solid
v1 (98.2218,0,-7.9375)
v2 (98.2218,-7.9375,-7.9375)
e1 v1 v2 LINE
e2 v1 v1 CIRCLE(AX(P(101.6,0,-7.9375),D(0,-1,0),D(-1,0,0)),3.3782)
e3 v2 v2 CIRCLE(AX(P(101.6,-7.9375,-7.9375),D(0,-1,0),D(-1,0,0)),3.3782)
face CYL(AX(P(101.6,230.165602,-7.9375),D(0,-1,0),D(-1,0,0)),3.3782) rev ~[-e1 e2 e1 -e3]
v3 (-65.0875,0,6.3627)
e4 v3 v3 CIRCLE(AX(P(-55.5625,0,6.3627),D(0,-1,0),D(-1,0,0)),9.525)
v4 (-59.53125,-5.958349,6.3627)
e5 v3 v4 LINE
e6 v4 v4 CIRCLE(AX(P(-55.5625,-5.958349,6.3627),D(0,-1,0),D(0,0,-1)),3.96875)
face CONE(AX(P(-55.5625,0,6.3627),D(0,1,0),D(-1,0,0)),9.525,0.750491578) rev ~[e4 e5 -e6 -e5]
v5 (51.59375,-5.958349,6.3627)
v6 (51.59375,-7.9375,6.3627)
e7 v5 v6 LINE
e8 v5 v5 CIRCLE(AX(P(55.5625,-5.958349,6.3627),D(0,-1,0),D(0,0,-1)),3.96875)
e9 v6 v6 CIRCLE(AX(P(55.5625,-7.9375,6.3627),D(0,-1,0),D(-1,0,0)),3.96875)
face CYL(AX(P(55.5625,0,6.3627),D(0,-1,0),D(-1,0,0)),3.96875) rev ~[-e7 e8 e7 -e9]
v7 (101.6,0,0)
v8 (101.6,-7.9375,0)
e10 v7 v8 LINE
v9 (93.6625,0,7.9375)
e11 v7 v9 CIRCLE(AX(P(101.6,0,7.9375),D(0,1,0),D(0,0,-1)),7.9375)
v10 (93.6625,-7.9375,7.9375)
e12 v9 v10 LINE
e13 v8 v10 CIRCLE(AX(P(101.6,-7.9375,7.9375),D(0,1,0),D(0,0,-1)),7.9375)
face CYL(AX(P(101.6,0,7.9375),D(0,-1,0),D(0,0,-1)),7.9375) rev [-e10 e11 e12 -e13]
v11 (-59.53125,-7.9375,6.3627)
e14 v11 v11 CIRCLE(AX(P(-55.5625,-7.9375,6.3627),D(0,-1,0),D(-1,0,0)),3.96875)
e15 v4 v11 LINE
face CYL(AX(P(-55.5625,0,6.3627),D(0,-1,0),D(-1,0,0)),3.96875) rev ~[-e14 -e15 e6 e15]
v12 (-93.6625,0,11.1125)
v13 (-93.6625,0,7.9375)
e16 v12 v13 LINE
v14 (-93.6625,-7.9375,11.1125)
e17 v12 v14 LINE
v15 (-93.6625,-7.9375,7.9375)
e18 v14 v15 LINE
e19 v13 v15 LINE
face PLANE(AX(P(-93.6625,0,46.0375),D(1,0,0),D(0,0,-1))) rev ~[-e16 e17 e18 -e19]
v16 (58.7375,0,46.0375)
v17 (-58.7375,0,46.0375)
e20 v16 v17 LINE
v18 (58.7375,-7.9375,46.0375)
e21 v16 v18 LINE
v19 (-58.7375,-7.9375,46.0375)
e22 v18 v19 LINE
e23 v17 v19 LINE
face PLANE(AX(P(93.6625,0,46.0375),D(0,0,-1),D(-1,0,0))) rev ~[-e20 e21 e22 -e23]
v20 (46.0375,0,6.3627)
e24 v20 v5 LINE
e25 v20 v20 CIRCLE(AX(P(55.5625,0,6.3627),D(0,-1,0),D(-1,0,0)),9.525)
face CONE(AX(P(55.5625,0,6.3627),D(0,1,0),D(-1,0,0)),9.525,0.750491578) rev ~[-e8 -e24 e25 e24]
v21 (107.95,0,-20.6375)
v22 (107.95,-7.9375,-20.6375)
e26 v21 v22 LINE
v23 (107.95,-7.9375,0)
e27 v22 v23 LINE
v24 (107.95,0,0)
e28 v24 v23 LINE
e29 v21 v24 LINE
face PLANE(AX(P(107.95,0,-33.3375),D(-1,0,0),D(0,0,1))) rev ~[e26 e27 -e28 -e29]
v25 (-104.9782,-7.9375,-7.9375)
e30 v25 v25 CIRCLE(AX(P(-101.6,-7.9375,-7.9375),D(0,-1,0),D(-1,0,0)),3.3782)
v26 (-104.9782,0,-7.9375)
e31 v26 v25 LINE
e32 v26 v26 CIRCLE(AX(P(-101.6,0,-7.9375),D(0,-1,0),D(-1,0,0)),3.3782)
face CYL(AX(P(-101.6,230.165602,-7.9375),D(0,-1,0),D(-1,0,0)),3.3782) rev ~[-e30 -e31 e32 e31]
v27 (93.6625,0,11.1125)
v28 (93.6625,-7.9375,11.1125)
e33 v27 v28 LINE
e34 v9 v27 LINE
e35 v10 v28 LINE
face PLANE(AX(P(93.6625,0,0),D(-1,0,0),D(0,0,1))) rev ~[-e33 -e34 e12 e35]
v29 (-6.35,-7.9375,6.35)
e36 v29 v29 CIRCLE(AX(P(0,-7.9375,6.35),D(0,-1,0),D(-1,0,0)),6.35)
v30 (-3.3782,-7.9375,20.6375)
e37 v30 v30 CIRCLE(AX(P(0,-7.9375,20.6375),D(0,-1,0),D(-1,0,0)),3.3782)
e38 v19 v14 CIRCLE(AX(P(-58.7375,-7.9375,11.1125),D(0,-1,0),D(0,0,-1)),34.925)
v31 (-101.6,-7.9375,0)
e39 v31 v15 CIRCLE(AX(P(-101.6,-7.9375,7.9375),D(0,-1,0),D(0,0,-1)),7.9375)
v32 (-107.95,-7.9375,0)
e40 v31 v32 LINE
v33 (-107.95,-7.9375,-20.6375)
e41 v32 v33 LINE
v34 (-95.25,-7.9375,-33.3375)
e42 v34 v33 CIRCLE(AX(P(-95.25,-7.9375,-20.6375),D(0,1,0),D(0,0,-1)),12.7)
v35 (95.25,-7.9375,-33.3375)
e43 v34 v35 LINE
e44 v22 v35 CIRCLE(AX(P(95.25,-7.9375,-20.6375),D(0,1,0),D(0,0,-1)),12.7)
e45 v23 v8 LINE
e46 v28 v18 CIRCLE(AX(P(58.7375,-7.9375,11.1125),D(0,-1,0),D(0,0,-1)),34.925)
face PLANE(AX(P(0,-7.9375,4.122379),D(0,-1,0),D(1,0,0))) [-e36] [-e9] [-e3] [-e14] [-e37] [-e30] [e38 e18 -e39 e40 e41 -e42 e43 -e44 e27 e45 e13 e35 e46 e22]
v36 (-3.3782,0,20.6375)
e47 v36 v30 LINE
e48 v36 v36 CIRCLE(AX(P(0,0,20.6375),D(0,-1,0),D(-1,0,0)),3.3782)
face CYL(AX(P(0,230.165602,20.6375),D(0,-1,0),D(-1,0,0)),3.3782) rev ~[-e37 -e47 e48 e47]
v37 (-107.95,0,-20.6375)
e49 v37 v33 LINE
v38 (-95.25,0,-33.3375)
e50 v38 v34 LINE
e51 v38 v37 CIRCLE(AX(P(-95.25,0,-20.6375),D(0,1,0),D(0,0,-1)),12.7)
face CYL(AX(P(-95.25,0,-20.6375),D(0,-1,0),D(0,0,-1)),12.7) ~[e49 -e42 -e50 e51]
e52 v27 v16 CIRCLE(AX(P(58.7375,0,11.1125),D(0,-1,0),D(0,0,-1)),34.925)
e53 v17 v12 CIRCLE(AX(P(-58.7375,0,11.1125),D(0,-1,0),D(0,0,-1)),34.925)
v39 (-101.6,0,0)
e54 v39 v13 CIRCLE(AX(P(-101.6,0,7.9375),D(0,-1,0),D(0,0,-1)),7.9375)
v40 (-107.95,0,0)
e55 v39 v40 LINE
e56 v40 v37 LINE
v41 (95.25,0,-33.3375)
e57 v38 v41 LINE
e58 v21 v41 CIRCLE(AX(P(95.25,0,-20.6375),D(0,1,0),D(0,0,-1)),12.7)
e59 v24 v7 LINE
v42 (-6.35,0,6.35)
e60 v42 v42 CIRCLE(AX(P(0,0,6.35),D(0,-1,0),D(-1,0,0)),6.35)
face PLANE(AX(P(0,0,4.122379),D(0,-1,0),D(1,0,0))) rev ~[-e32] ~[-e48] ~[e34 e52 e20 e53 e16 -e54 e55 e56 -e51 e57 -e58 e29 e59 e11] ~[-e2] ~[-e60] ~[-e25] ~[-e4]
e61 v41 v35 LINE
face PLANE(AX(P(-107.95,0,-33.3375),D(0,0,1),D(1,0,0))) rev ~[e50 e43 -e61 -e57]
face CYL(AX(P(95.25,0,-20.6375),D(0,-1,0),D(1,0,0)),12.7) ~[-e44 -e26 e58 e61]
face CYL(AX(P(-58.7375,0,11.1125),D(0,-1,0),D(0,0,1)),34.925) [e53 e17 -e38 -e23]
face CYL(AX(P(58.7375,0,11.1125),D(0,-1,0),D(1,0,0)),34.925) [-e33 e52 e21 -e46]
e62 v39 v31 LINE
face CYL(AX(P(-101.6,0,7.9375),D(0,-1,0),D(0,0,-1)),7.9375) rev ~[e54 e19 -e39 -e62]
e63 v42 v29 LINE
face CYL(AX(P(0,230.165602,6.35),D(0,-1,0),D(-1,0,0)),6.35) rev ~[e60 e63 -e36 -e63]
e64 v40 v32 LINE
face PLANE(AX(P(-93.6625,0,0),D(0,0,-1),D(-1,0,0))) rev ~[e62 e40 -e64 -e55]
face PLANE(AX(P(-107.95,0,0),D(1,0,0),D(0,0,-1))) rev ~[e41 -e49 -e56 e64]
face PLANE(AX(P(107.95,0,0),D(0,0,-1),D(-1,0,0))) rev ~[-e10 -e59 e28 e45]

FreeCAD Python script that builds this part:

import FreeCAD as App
import Part
import Sketcher
from FreeCAD import Vector
Q = App.Units.Quantity


def edges_at(feature, points):
    """Names of the edges that pass closest to the given points."""
    edges = feature.Shape.Edges
    near = lambda p: min(range(len(edges)), key=lambda i: edges[i].distToShape(Part.Vertex(*p))[0])
    return sorted({f"Edge{near(p) + 1}" for p in points})


def add_polygon(sketch, points):
    """Adds a closed chain of lines whose ends are joined by coincident constraints."""
    first, n = sketch.GeometryCount, len(points)
    for a, b in zip(points, points[1:] + points[:1]):
        sketch.addGeometry(Part.LineSegment(App.Vector(*a, 0), App.Vector(*b, 0)), False)
    for i in range(n):
        sketch.addConstraint(Sketcher.Constraint("Coincident", first + i, 2, first + (i + 1) % n, 1))

doc = App.newDocument("Part")
params = doc.addObject("Spreadsheet::Sheet", "Params")
for row, (alias, value) in enumerate([
    ("sketch1_width", "8.5 in"),
    ("sketch1_width2", "0.5625 in"),
    ("sketch1_height", "1.3125 in"),
    ("sketch1_height2", "1.8125 in"),
    ("pad1_length", "0.3125 in"),
    ("fillet_radius", "1.375 in"),
    ("fillet2_radius", "0.5 in"),
    ("sketch2_diameter", "0.266 in"),
    ("hole_diameter", "0.266 in"),
    ("sketch3_diameter", "0.266 in"),
    ("hole2_diameter", "0.266 in"),
    ("sketch4_diameter", "0.5 in"),
    ("hole3_diameter", "0.5 in"),
    ("fillet3_radius", "0.3125 in"),
    ("sketch5_diameter", "0.3125 in"),
    ("hole4_diameter", "0.3125 in"),
    ("hole4_csink_diameter", "0.75 in"),
], start=1):
    params.set(f"A{row}", alias)
    params.set(f"B{row}", "=" + value)
    params.setAlias(f"B{row}", alias)

body = doc.addObject("PartDesign::Body", "Body")

# Sketch on XZ plane
sketch1 = body.newObject("Sketcher::SketchObject", "Sketch")
sketch1.AttachmentSupport = (doc.getObject("XZ_Plane"), [""])
sketch1.MapMode = "FlatFace"
add_polygon(sketch1, [(-107.95, 0), (-107.95, -33.3375), (107.95, -33.3375), (107.95, 0), (93.6625, 0), (93.6625, 46.0375), (-93.6625, 46.0375), (-93.6625, 0)])  # lines 0-7
sketch1.addConstraint(Sketcher.Constraint("Vertical", 0))
sketch1.addConstraint(Sketcher.Constraint("Horizontal", 1))
sketch1.addConstraint(Sketcher.Constraint("Vertical", 2))
sketch1.addConstraint(Sketcher.Constraint("Horizontal", 3))
sketch1.addConstraint(Sketcher.Constraint("Vertical", 4))
sketch1.addConstraint(Sketcher.Constraint("Horizontal", 5))
sketch1.addConstraint(Sketcher.Constraint("Vertical", 6))
sketch1.addConstraint(Sketcher.Constraint("Horizontal", 7))
sketch1.addConstraint(Sketcher.Constraint("Symmetric", 3, 2, 6, 2, -1, 1))
sketch1.addConstraint(Sketcher.Constraint("Symmetric", 2, 2, 7, 2, -2))
sketch1.addConstraint(Sketcher.Constraint("DistanceX", 1, 1, 1, 2, Q("8.5 in")))
sketch1.addConstraint(Sketcher.Constraint("DistanceX", 3, 2, 3, 1, Q("0.5625 in")))
sketch1.addConstraint(Sketcher.Constraint("DistanceY", 0, 2, 0, 1, Q("1.3125 in")))
sketch1.addConstraint(Sketcher.Constraint("DistanceY", 4, 1, 4, 2, Q("1.8125 in")))
sketch1.setExpression("Constraints[18]", "Params.sketch1_width")
sketch1.setExpression("Constraints[19]", "Params.sketch1_width2")
sketch1.setExpression("Constraints[20]", "Params.sketch1_height")
sketch1.setExpression("Constraints[21]", "Params.sketch1_height2")
pad1 = body.newObject("PartDesign::Pad", "Pad")
pad1.Profile = sketch1
pad1.setExpression("Length", "Params.pad1_length")
doc.recompute()

fillet = body.newObject("PartDesign::Fillet", "Fillet")
fillet.Base = (pad1, edges_at(pad1, [(-93.662, -3.969, 46.038), (93.662, -3.969, 46.038)]))
fillet.setExpression("Radius", "Params.fillet_radius")
doc.recompute()

fillet2 = body.newObject("PartDesign::Fillet", "Fillet001")
fillet2.Base = (fillet, edges_at(fillet, [(-107.95, -3.969, -33.337), (107.95, -3.969, -33.337)]))
fillet2.setExpression("Radius", "Params.fillet2_radius")

# Sketch on XZ plane
sketch2 = body.newObject("Sketcher::SketchObject", "Sketch001")
sketch2.AttachmentSupport = (doc.getObject("XZ_Plane"), [""])
sketch2.MapMode = "FlatFace"
sketch2.addGeometry(Part.Circle(Vector(-101.6, -7.9375, 0), Vector(0, 0, 1), 3.3782), False)
sketch2.addGeometry(Part.Circle(Vector(101.6, -7.9375, 0), Vector(0, 0, 1), 3.3782), False)
sketch2.addConstraint(Sketcher.Constraint("Equal", 0, 1))
sketch2.addConstraint(Sketcher.Constraint("Symmetric", 0, 3, 1, 3, -2))
sketch2.addConstraint(Sketcher.Constraint("Diameter", 0, Q("0.266 in")))
sketch2.addConstraint(Sketcher.Constraint("DistanceX", 0, 3, -1, 1, Q("4 in")))
sketch2.addConstraint(Sketcher.Constraint("DistanceY", 0, 3, -1, 1, Q("0.3125 in")))
sketch2.setExpression("Constraints[2]", "Params.sketch2_diameter")
doc.recompute()
hole = body.newObject("PartDesign::Hole", "Hole")
hole.Profile = sketch2
hole.ThreadType = "None"
hole.setExpression("Diameter", "Params.hole_diameter")
hole.DepthType = "ThroughAll"
hole.Reversed = True

# Sketch on XZ plane
sketch3 = body.newObject("Sketcher::SketchObject", "Sketch002")
sketch3.AttachmentSupport = (doc.getObject("XZ_Plane"), [""])
sketch3.MapMode = "FlatFace"
sketch3.addGeometry(Part.Circle(Vector(0, 20.6375, 0), Vector(0, 0, 1), 3.3782), False)
sketch3.addConstraint(Sketcher.Constraint("PointOnObject", 0, 3, -2))
sketch3.addConstraint(Sketcher.Constraint("Diameter", 0, Q("0.266 in")))
sketch3.addConstraint(Sketcher.Constraint("DistanceY", -1, 1, 0, 3, Q("0.8125 in")))
sketch3.setExpression("Constraints[1]", "Params.sketch3_diameter")
doc.recompute()
hole2 = body.newObject("PartDesign::Hole", "Hole001")
hole2.Profile = sketch3
hole2.ThreadType = "None"
hole2.setExpression("Diameter", "Params.hole2_diameter")
hole2.DepthType = "ThroughAll"
hole2.Reversed = True

# Sketch on XZ plane
sketch4 = body.newObject("Sketcher::SketchObject", "Sketch003")
sketch4.AttachmentSupport = (doc.getObject("XZ_Plane"), [""])
sketch4.MapMode = "FlatFace"
sketch4.addGeometry(Part.Circle(Vector(0, 6.35, 0), Vector(0, 0, 1), 6.35), False)
sketch4.addConstraint(Sketcher.Constraint("PointOnObject", 0, 3, -2))
sketch4.addConstraint(Sketcher.Constraint("Diameter", 0, Q("0.5 in")))
sketch4.addConstraint(Sketcher.Constraint("DistanceY", -1, 1, 0, 3, Q("0.25 in")))
sketch4.setExpression("Constraints[1]", "Params.sketch4_diameter")
doc.recompute()
hole3 = body.newObject("PartDesign::Hole", "Hole002")
hole3.Profile = sketch4
hole3.ThreadType = "None"
hole3.setExpression("Diameter", "Params.hole3_diameter")
hole3.DepthType = "ThroughAll"
hole3.Reversed = True
doc.recompute()

fillet3 = body.newObject("PartDesign::Fillet", "Fillet002")
fillet3.Base = (hole3, edges_at(hole3, [(-93.662, -3.969, 0), (93.662, -3.969, 0)]))
fillet3.setExpression("Radius", "Params.fillet3_radius")

# Sketch on XZ plane
sketch5 = body.newObject("Sketcher::SketchObject", "Sketch004")
sketch5.AttachmentSupport = (doc.getObject("XZ_Plane"), [""])
sketch5.MapMode = "FlatFace"
sketch5.addGeometry(Part.Circle(Vector(-55.5625, 6.3627, 0), Vector(0, 0, 1), 3.96875), False)
sketch5.addGeometry(Part.Circle(Vector(55.5625, 6.3627, 0), Vector(0, 0, 1), 3.96875), False)
sketch5.addConstraint(Sketcher.Constraint("Equal", 0, 1))
sketch5.addConstraint(Sketcher.Constraint("Symmetric", 0, 3, 1, 3, -2))
sketch5.addConstraint(Sketcher.Constraint("Diameter", 0, Q("0.3125 in")))
sketch5.addConstraint(Sketcher.Constraint("DistanceX", 0, 3, -1, 1, Q("2.1875 in")))
sketch5.addConstraint(Sketcher.Constraint("DistanceY", -1, 1, 0, 3, Q("0.2505 in")))
sketch5.setExpression("Constraints[2]", "Params.sketch5_diameter")
doc.recompute()
hole4 = body.newObject("PartDesign::Hole", "Hole003")
hole4.Profile = sketch5
hole4.ThreadType = "None"
hole4.setExpression("Diameter", "Params.hole4_diameter")
hole4.DepthType = "ThroughAll"
hole4.HoleCutType = "Countersink"
hole4.setExpression("HoleCutDiameter", "Params.hole4_csink_diameter")
hole4.HoleCutCountersinkAngle = 86
hole4.Reversed = True

doc.recompute()
